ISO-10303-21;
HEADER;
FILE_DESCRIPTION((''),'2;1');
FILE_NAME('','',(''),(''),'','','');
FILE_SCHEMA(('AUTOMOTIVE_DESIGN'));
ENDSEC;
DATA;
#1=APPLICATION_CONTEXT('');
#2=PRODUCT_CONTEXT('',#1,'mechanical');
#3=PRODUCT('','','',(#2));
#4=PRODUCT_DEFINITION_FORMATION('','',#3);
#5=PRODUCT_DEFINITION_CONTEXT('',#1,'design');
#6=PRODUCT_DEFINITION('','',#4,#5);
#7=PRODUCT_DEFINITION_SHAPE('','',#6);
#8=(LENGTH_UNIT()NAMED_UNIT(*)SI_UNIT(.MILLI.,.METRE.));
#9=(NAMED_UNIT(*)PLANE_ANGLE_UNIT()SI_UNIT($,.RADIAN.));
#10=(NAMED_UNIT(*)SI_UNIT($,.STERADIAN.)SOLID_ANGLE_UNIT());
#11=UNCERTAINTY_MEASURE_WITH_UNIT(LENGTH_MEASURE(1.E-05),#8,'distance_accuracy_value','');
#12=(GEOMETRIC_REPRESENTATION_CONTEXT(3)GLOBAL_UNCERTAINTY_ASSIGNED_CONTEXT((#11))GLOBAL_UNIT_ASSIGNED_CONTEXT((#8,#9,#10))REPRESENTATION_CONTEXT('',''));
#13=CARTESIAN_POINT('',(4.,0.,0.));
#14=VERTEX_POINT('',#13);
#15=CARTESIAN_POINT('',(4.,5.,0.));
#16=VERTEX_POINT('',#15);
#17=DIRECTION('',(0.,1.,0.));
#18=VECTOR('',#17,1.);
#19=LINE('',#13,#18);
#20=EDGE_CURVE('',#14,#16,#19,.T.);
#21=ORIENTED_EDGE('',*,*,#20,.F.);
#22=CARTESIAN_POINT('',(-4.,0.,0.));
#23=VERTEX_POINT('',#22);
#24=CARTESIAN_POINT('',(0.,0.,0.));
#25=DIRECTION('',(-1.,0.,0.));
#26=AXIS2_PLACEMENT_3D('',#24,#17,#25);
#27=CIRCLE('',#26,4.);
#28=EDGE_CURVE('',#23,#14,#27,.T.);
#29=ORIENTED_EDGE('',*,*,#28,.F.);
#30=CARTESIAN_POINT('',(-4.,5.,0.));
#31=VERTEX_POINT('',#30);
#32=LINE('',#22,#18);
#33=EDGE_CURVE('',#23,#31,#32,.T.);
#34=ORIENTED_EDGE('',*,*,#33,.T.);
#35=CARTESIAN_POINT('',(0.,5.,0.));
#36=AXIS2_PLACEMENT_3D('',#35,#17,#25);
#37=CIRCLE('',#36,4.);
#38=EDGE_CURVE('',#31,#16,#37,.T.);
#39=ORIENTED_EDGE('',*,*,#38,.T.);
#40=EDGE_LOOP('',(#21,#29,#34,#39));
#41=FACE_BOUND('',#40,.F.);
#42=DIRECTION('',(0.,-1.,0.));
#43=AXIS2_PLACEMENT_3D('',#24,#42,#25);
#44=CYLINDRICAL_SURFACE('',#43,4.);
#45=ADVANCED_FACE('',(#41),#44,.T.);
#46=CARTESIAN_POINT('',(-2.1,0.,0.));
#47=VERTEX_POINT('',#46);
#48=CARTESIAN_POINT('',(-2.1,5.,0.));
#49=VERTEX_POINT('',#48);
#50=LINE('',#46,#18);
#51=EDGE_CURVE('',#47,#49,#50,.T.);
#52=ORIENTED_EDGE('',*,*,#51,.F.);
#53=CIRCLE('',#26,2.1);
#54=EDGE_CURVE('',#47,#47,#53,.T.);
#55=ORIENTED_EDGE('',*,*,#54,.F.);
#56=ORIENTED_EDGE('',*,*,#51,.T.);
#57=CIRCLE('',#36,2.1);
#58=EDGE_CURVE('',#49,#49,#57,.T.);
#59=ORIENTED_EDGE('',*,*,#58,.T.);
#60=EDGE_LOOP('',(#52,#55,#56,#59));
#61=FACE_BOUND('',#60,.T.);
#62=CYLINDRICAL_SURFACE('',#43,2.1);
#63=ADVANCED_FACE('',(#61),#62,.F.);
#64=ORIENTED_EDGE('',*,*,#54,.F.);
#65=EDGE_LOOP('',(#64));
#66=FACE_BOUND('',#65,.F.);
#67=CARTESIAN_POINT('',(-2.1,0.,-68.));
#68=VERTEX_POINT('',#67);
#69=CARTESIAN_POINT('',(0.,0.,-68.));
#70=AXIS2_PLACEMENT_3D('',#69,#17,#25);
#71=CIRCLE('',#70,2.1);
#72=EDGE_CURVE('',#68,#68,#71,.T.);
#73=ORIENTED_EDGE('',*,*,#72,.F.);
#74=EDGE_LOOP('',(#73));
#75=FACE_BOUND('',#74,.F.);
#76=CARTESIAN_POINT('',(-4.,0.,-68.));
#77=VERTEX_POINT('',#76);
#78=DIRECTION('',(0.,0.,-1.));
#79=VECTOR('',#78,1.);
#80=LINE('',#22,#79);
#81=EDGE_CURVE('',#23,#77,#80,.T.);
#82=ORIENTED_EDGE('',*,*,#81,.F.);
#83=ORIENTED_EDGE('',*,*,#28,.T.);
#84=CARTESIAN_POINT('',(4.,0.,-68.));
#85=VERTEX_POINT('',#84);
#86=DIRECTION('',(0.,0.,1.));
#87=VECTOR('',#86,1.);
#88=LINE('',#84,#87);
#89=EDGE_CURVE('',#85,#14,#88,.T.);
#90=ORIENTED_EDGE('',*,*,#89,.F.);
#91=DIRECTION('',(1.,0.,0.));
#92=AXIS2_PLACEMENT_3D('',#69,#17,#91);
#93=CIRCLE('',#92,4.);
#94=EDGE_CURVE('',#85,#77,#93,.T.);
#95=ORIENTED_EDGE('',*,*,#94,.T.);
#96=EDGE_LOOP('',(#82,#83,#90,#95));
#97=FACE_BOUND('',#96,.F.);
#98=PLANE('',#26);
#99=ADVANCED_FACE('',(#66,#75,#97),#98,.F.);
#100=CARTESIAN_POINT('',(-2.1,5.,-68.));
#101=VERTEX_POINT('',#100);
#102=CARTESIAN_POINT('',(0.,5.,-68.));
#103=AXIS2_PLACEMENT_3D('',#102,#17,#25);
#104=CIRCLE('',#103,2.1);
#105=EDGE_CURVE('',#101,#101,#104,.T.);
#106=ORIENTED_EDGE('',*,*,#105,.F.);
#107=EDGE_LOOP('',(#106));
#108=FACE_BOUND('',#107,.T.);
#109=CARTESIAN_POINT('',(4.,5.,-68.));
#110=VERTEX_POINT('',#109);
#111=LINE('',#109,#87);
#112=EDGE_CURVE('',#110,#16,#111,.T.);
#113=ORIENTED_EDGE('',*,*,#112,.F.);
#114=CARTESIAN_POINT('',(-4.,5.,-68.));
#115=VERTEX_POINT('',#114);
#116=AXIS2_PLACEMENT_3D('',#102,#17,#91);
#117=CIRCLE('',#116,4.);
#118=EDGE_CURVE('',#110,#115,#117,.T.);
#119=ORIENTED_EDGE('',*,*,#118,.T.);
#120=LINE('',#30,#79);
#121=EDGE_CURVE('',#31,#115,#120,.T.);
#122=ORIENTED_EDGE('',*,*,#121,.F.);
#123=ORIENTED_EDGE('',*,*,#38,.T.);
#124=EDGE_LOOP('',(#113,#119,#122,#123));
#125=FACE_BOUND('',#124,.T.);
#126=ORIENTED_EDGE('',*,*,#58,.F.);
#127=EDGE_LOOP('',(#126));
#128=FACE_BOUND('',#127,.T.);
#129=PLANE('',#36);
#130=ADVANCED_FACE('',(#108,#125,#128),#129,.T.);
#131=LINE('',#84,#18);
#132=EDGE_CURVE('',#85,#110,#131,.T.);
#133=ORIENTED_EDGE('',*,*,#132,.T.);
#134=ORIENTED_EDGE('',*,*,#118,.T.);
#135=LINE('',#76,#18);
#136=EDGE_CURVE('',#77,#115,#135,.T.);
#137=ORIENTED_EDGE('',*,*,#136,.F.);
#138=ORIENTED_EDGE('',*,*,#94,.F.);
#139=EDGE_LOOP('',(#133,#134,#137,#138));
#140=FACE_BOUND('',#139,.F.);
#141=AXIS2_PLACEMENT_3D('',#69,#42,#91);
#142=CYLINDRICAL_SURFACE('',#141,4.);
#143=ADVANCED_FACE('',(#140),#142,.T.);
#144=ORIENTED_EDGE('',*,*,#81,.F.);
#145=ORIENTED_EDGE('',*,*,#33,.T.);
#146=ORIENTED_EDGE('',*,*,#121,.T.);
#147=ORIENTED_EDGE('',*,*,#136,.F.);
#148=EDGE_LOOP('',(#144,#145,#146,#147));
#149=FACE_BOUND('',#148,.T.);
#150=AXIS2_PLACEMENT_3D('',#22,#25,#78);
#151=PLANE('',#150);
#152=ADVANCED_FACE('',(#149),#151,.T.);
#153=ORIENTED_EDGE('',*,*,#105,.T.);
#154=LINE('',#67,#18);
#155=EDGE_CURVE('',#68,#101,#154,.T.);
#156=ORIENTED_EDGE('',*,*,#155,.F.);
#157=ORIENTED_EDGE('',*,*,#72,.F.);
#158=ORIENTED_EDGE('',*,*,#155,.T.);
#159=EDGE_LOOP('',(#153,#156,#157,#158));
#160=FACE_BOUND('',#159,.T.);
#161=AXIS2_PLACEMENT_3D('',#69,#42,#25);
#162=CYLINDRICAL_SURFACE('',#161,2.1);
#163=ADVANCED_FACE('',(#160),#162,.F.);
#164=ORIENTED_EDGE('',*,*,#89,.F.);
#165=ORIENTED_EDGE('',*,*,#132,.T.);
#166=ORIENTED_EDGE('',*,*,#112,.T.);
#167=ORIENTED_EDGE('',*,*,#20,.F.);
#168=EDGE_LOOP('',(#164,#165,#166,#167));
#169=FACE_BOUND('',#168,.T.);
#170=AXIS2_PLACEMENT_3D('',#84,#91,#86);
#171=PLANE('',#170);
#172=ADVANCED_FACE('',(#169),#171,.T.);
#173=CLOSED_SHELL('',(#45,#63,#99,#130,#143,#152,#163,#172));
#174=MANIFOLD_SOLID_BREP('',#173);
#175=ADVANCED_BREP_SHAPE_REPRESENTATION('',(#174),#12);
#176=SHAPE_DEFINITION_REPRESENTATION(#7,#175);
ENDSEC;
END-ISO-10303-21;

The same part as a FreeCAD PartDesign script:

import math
import FreeCAD as App
import Part
import Sketcher
from FreeCAD import Vector

doc = App.newDocument("Part")
params = doc.addObject("Spreadsheet::Sheet", "Params")
for row, (alias, value) in enumerate([
    ("sketch1_radius", "4 mm"),
    ("sketch1_diameter", "4.2 mm"),
    ("sketch1_height", "68 mm"),
    ("pad1_length", "5 mm"),
], start=1):
    params.set(f"A{row}", alias)
    params.set(f"B{row}", "=" + value)
    params.setAlias(f"B{row}", alias)

body = doc.addObject("PartDesign::Body", "Body")

sketch1 = body.newObject("Sketcher::SketchObject", "Sketch")
sketch1.AttachmentSupport = (doc.getObject("XZ_Plane"), [""])
sketch1.MapMode = "FlatFace"
sketch1.addGeometry([
    Part.LineSegment(Vector(-4, -68, 0), Vector(-4, 0, 0)),
    Part.ArcOfCircle(Part.Circle(Vector(0, 0, 0), Vector(0, 0, 1), 4), math.radians(0), math.radians(180)),
    Part.LineSegment(Vector(4, 0, 0), Vector(4, -68, 0)),
    Part.ArcOfCircle(Part.Circle(Vector(0, -68, 0), Vector(0, 0, 1), 4), math.radians(180), math.radians(360)),
    Part.Circle(Vector(0, -68, 0), Vector(0, 0, 1), 2.1),
    Part.Circle(Vector(0, 0, 0), Vector(0, 0, 1), 2.1),
], False)
sketch1.addConstraint([
    Sketcher.Constraint("Tangent", 0, 2, 1, 2),
    Sketcher.Constraint("Tangent", 1, 1, 2, 1),
    Sketcher.Constraint("Tangent", 2, 2, 3, 2),
    Sketcher.Constraint("Tangent", 3, 1, 0, 1),
    Sketcher.Constraint("Vertical", 0),
    Sketcher.Constraint("Vertical", 2),
    Sketcher.Constraint("Coincident", 1, 3, -1, 1),
    Sketcher.Constraint("Coincident", 5, 3, -1, 1),
    Sketcher.Constraint("Coincident", 4, 3, 3, 3),
    Sketcher.Constraint("Equal", 4, 5),
    Sketcher.Constraint("Radius", 1, 4.0),
    Sketcher.Constraint("Diameter", 4, 4.2),
    Sketcher.Constraint("DistanceY", 0, 1, 0, 2, 68.0),
])
sketch1.setExpression("Constraints[10]", "Params.sketch1_radius")
sketch1.setExpression("Constraints[11]", "Params.sketch1_diameter")
sketch1.setExpression("Constraints[12]", "Params.sketch1_height")
pad1 = body.newObject("PartDesign::Pad", "Pad")
pad1.Profile = sketch1
pad1.setExpression("Length", "Params.pad1_length")
pad1.Reversed = True

doc.recompute()
